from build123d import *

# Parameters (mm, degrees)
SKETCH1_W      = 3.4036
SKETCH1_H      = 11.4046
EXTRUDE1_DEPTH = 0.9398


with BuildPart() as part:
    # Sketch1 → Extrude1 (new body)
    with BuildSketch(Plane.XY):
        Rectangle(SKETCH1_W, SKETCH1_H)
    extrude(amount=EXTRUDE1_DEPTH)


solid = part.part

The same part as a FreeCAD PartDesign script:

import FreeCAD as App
import Part
import Sketcher

V = App.Vector
Q = App.Units.Quantity

doc = App.newDocument("Part")
body = doc.addObject("PartDesign::Body", "Body")

# Sketch on XY plane
sketch1 = body.newObject("Sketcher::SketchObject", "Sketch")
sketch1.AttachmentSupport = (doc.getObject("XY_Plane"), [""])
sketch1.MapMode = "FlatFace"
sketch1.addGeometry([
    Part.LineSegment(V(-1.7, 5.7, 0), V(-1.7, -5.7, 0)),
    Part.LineSegment(V(-1.7, -5.7, 0), V(1.7, -5.7, 0)),
    Part.LineSegment(V(1.7, -5.7, 0), V(1.7, 5.7, 0)),
    Part.LineSegment(V(1.7, 5.7, 0), V(-1.7, 5.7, 0)),
], False)
sketch1.addConstraint([
    Sketcher.Constraint("Coincident", 0, 2, 1, 1),
    Sketcher.Constraint("Coincident", 1, 2, 2, 1),
    Sketcher.Constraint("Coincident", 2, 2, 3, 1),
    Sketcher.Constraint("Coincident", 3, 2, 0, 1),
    Sketcher.Constraint("Vertical", 0),
    Sketcher.Constraint("Horizontal", 1),
    Sketcher.Constraint("Vertical", 2),
    Sketcher.Constraint("Horizontal", 3),
    Sketcher.Constraint("Symmetric", 0, 2, 2, 2, -1, 1),
    Sketcher.Constraint("DistanceX", 1, 1, 1, 2, Q("0.134 in")),
    Sketcher.Constraint("DistanceY", 0, 2, 0, 1, Q("0.449 in")),
])
pad1 = body.newObject("PartDesign::Pad", "Pad")
pad1.Profile = sketch1
pad1.Length = Q("0.037 in")

doc.recompute()
